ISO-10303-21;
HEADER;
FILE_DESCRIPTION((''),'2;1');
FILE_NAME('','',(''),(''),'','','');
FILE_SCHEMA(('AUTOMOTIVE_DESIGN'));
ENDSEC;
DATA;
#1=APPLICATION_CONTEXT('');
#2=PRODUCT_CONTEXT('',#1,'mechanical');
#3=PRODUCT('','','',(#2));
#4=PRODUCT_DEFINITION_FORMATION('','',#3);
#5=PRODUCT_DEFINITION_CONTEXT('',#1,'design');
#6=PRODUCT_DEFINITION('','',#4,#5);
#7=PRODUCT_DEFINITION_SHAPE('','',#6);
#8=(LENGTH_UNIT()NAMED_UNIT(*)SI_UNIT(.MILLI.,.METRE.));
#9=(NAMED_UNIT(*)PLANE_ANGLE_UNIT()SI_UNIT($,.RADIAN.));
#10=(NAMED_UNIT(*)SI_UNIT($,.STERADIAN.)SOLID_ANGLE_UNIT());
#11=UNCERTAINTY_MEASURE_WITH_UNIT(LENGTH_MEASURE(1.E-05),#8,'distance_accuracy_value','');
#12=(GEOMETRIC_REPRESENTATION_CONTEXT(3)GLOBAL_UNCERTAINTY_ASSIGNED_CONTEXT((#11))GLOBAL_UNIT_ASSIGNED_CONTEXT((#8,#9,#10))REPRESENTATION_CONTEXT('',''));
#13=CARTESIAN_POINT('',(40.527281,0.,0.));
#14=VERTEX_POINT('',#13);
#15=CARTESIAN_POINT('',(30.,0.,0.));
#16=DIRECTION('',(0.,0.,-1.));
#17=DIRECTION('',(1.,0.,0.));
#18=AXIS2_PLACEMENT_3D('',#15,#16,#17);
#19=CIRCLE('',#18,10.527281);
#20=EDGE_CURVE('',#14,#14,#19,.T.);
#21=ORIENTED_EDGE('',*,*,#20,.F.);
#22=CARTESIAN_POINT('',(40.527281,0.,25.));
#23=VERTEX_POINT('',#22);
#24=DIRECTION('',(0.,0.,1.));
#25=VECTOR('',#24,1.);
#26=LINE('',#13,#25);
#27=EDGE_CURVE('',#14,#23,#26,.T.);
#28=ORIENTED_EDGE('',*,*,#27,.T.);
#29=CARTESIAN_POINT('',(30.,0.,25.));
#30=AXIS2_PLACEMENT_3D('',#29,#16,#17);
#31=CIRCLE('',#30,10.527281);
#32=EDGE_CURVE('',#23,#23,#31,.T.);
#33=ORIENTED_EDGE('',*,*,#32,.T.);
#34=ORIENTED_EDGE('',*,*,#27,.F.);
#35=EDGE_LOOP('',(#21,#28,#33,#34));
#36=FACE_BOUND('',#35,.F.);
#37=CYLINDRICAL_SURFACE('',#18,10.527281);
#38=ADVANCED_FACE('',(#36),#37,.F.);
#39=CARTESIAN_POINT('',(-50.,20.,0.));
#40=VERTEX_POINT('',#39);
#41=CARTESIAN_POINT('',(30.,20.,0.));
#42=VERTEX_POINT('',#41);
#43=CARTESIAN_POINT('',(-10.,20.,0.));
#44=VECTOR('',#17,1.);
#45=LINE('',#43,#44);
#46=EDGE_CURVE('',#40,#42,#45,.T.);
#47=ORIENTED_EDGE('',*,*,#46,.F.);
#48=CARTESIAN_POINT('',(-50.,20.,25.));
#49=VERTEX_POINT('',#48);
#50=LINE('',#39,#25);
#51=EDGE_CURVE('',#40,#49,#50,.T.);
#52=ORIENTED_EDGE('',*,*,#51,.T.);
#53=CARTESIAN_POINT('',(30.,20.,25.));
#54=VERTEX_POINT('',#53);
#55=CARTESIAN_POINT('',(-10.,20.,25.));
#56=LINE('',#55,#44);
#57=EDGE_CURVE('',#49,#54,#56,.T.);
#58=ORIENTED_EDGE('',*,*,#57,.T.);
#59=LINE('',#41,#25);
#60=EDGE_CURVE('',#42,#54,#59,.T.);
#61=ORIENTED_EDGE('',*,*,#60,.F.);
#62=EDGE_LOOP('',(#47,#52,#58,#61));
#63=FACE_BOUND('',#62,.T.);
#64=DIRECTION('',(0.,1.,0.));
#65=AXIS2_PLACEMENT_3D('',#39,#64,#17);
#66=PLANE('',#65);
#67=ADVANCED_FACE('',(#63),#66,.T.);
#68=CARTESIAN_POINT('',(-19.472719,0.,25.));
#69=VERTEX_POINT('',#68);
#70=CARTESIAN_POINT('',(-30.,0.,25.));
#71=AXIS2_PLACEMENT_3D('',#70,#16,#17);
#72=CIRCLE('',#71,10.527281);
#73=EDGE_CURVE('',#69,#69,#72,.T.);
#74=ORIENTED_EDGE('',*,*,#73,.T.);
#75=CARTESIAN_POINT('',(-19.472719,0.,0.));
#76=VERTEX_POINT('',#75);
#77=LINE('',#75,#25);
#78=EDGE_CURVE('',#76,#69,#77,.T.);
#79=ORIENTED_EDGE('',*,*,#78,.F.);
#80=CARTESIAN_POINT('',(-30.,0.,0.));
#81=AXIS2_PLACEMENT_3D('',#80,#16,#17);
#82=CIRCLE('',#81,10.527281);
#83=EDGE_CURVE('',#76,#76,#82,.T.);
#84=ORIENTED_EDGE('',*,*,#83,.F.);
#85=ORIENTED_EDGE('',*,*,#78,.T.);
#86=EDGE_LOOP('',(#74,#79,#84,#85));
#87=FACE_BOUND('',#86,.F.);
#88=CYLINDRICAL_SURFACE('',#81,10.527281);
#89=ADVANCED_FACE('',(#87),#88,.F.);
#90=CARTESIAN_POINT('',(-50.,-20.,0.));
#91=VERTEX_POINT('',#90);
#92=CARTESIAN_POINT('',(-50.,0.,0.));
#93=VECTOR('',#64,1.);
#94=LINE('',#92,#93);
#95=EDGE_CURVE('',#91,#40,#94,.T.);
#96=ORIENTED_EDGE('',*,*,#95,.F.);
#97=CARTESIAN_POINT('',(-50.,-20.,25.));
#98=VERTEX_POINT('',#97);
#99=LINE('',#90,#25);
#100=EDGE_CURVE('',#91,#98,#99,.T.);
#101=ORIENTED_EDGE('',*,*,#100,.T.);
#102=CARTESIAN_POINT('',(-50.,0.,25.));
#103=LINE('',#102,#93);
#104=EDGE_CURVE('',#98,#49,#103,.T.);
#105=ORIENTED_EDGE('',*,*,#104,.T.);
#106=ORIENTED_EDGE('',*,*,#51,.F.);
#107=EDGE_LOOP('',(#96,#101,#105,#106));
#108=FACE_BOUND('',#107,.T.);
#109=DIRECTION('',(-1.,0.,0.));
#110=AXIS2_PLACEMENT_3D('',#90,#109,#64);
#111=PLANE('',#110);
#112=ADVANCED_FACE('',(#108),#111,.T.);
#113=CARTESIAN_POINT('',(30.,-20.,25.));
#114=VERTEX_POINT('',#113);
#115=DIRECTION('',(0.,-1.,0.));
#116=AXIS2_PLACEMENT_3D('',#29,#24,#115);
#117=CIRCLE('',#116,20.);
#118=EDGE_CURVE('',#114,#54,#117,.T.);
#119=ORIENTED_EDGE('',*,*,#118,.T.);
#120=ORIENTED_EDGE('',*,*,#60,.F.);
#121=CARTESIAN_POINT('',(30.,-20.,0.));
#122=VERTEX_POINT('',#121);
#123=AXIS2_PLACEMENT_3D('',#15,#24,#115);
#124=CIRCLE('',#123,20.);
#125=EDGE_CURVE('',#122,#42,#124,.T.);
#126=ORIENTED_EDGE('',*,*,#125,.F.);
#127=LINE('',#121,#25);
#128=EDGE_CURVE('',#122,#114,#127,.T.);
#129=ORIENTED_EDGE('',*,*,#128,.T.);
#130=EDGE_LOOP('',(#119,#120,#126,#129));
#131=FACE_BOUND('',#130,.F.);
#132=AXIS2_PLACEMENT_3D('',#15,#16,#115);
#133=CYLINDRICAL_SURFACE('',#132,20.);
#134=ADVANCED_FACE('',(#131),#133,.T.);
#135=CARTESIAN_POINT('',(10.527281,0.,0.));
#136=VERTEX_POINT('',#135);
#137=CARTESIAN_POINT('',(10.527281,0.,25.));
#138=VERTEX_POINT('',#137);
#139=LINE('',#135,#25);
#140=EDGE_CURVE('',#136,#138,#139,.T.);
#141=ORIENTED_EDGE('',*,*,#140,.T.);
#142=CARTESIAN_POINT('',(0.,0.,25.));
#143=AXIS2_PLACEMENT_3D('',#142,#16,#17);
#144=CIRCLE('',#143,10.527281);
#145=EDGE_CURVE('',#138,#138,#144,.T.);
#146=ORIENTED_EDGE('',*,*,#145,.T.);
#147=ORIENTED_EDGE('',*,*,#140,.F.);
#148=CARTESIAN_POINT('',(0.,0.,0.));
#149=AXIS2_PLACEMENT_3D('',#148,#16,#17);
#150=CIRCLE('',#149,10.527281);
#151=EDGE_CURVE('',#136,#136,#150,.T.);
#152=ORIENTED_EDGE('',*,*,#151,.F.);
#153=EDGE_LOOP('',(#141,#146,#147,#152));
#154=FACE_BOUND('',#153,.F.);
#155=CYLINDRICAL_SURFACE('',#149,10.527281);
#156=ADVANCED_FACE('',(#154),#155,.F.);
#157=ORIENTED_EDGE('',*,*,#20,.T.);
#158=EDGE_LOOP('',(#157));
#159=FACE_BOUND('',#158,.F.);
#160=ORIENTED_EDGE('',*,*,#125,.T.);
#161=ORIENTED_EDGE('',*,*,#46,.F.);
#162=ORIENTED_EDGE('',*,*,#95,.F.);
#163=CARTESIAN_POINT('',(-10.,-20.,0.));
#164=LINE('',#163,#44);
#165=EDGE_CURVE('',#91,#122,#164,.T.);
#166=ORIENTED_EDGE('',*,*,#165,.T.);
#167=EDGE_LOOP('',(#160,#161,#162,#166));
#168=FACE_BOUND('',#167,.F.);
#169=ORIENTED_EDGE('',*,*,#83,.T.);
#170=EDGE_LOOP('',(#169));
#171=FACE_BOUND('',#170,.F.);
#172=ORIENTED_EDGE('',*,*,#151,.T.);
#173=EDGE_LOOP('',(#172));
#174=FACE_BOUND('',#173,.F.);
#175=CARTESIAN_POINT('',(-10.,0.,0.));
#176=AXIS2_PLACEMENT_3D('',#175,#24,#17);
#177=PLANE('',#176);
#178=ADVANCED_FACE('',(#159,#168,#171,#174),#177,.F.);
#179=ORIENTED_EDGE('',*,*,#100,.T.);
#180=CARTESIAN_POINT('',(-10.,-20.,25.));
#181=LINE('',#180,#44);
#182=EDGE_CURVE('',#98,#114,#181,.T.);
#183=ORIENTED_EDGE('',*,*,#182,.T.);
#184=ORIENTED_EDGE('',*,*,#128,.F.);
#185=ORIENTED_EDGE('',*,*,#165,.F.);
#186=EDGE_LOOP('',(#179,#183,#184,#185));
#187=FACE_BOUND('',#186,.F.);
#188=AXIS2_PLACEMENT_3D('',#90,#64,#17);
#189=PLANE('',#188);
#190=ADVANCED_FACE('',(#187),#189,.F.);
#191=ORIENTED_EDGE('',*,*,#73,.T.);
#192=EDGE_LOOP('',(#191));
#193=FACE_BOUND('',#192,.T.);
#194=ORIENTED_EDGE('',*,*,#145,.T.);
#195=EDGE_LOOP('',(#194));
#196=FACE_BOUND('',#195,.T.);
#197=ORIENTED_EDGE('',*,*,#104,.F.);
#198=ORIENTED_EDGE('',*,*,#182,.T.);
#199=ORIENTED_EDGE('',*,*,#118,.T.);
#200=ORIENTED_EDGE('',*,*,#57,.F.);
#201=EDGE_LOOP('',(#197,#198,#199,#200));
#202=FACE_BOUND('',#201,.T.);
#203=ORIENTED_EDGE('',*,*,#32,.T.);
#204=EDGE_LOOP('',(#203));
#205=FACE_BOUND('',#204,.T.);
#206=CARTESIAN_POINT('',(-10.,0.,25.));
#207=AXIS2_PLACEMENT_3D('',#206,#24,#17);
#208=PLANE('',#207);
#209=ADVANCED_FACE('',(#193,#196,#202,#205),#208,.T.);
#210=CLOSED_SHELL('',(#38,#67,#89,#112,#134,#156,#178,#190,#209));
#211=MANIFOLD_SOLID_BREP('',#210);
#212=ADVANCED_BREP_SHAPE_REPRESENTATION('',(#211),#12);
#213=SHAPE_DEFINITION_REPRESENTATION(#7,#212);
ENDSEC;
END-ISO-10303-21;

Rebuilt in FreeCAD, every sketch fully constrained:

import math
import FreeCAD as App
import Part
import Sketcher

doc = App.newDocument("Part")
params = doc.addObject("Spreadsheet::Sheet", "Params")
for row, (alias, value) in enumerate([
    ("sketch1_radius", "20 mm"),
    ("sketch1_width", "80 mm"),
    ("pad1_length", "25 mm"),
], start=1):
    params.set(f"A{row}", alias)
    params.set(f"B{row}", "=" + value)
    params.setAlias(f"B{row}", alias)

body = doc.addObject("PartDesign::Body", "Body")

sketch1 = body.newObject("Sketcher::SketchObject", "Sketch")
sketch1.AttachmentSupport = (doc.getObject("XY_Plane"), [""])
sketch1.MapMode = "FlatFace"
sketch1.addGeometry([
    Part.LineSegment(App.Vector(-50, 20, 0), App.Vector(-50, -20, 0)),
    Part.LineSegment(App.Vector(-50, -20, 0), App.Vector(30, -20, 0)),
    Part.ArcOfCircle(Part.Circle(App.Vector(30, 0, 0), App.Vector(0, 0, 1), 20), math.radians(-90), math.radians(90)),
    Part.LineSegment(App.Vector(30, 20, 0), App.Vector(-50, 20, 0)),
], False)
sketch1.addConstraint([
    Sketcher.Constraint("Coincident", 0, 2, 1, 1),
    Sketcher.Constraint("Tangent", 1, 2, 2, 1),
    Sketcher.Constraint("Tangent", 2, 2, 3, 1),
    Sketcher.Constraint("Coincident", 3, 2, 0, 1),
    Sketcher.Constraint("Vertical", 0),
    Sketcher.Constraint("Horizontal", 1),
    Sketcher.Constraint("Horizontal", 3),
    Sketcher.Constraint("PointOnObject", 2, 3, -1),
    Sketcher.Constraint("Radius", 2, 20.0),
    Sketcher.Constraint("DistanceX", 1, 1, 1, 2, 80.0),
    Sketcher.Constraint("DistanceX", -1, 1, 2, 3, 30.0),
])
sketch1.setExpression("Constraints[8]", "Params.sketch1_radius")
sketch1.setExpression("Constraints[9]", "Params.sketch1_width")
pad1 = body.newObject("PartDesign::Pad", "Pad")
pad1.Profile = sketch1
pad1.setExpression("Length", "Params.pad1_length")

sketch2 = body.newObject("Sketcher::SketchObject", "Sketch001")
sketch2.AttachmentSupport = (doc.getObject("XY_Plane"), [""])
sketch2.MapMode = "FlatFace"
sketch2.addGeometry([
    Part.Circle(App.Vector(30, 0, 0), App.Vector(0, 0, 1), 10.527281),
    Part.Circle(App.Vector(0, 0, 0), App.Vector(0, 0, 1), 10.527281),
    Part.Circle(App.Vector(-30, 0, 0), App.Vector(0, 0, 1), 10.527281),
], False)
sketch2.addConstraint([
    Sketcher.Constraint("Coincident", 1, 3, -1, 1),
    Sketcher.Constraint("Equal", 0, 1),
    Sketcher.Constraint("Equal", 1, 2),
    Sketcher.Constraint("Symmetric", 0, 3, 2, 3, -1, 1),
    Sketcher.Constraint("PointOnObject", 0, 3, -1),
    Sketcher.Constraint("DistanceX", -1, 1, 0, 3, 30.0),
    Sketcher.Constraint("Diameter", 0, 21.054562),
])
pocket1 = body.newObject("PartDesign::Pocket", "Pocket")
pocket1.Profile = sketch2
pocket1.Type = "ThroughAll"
pocket1.Reversed = True

doc.recompute()
